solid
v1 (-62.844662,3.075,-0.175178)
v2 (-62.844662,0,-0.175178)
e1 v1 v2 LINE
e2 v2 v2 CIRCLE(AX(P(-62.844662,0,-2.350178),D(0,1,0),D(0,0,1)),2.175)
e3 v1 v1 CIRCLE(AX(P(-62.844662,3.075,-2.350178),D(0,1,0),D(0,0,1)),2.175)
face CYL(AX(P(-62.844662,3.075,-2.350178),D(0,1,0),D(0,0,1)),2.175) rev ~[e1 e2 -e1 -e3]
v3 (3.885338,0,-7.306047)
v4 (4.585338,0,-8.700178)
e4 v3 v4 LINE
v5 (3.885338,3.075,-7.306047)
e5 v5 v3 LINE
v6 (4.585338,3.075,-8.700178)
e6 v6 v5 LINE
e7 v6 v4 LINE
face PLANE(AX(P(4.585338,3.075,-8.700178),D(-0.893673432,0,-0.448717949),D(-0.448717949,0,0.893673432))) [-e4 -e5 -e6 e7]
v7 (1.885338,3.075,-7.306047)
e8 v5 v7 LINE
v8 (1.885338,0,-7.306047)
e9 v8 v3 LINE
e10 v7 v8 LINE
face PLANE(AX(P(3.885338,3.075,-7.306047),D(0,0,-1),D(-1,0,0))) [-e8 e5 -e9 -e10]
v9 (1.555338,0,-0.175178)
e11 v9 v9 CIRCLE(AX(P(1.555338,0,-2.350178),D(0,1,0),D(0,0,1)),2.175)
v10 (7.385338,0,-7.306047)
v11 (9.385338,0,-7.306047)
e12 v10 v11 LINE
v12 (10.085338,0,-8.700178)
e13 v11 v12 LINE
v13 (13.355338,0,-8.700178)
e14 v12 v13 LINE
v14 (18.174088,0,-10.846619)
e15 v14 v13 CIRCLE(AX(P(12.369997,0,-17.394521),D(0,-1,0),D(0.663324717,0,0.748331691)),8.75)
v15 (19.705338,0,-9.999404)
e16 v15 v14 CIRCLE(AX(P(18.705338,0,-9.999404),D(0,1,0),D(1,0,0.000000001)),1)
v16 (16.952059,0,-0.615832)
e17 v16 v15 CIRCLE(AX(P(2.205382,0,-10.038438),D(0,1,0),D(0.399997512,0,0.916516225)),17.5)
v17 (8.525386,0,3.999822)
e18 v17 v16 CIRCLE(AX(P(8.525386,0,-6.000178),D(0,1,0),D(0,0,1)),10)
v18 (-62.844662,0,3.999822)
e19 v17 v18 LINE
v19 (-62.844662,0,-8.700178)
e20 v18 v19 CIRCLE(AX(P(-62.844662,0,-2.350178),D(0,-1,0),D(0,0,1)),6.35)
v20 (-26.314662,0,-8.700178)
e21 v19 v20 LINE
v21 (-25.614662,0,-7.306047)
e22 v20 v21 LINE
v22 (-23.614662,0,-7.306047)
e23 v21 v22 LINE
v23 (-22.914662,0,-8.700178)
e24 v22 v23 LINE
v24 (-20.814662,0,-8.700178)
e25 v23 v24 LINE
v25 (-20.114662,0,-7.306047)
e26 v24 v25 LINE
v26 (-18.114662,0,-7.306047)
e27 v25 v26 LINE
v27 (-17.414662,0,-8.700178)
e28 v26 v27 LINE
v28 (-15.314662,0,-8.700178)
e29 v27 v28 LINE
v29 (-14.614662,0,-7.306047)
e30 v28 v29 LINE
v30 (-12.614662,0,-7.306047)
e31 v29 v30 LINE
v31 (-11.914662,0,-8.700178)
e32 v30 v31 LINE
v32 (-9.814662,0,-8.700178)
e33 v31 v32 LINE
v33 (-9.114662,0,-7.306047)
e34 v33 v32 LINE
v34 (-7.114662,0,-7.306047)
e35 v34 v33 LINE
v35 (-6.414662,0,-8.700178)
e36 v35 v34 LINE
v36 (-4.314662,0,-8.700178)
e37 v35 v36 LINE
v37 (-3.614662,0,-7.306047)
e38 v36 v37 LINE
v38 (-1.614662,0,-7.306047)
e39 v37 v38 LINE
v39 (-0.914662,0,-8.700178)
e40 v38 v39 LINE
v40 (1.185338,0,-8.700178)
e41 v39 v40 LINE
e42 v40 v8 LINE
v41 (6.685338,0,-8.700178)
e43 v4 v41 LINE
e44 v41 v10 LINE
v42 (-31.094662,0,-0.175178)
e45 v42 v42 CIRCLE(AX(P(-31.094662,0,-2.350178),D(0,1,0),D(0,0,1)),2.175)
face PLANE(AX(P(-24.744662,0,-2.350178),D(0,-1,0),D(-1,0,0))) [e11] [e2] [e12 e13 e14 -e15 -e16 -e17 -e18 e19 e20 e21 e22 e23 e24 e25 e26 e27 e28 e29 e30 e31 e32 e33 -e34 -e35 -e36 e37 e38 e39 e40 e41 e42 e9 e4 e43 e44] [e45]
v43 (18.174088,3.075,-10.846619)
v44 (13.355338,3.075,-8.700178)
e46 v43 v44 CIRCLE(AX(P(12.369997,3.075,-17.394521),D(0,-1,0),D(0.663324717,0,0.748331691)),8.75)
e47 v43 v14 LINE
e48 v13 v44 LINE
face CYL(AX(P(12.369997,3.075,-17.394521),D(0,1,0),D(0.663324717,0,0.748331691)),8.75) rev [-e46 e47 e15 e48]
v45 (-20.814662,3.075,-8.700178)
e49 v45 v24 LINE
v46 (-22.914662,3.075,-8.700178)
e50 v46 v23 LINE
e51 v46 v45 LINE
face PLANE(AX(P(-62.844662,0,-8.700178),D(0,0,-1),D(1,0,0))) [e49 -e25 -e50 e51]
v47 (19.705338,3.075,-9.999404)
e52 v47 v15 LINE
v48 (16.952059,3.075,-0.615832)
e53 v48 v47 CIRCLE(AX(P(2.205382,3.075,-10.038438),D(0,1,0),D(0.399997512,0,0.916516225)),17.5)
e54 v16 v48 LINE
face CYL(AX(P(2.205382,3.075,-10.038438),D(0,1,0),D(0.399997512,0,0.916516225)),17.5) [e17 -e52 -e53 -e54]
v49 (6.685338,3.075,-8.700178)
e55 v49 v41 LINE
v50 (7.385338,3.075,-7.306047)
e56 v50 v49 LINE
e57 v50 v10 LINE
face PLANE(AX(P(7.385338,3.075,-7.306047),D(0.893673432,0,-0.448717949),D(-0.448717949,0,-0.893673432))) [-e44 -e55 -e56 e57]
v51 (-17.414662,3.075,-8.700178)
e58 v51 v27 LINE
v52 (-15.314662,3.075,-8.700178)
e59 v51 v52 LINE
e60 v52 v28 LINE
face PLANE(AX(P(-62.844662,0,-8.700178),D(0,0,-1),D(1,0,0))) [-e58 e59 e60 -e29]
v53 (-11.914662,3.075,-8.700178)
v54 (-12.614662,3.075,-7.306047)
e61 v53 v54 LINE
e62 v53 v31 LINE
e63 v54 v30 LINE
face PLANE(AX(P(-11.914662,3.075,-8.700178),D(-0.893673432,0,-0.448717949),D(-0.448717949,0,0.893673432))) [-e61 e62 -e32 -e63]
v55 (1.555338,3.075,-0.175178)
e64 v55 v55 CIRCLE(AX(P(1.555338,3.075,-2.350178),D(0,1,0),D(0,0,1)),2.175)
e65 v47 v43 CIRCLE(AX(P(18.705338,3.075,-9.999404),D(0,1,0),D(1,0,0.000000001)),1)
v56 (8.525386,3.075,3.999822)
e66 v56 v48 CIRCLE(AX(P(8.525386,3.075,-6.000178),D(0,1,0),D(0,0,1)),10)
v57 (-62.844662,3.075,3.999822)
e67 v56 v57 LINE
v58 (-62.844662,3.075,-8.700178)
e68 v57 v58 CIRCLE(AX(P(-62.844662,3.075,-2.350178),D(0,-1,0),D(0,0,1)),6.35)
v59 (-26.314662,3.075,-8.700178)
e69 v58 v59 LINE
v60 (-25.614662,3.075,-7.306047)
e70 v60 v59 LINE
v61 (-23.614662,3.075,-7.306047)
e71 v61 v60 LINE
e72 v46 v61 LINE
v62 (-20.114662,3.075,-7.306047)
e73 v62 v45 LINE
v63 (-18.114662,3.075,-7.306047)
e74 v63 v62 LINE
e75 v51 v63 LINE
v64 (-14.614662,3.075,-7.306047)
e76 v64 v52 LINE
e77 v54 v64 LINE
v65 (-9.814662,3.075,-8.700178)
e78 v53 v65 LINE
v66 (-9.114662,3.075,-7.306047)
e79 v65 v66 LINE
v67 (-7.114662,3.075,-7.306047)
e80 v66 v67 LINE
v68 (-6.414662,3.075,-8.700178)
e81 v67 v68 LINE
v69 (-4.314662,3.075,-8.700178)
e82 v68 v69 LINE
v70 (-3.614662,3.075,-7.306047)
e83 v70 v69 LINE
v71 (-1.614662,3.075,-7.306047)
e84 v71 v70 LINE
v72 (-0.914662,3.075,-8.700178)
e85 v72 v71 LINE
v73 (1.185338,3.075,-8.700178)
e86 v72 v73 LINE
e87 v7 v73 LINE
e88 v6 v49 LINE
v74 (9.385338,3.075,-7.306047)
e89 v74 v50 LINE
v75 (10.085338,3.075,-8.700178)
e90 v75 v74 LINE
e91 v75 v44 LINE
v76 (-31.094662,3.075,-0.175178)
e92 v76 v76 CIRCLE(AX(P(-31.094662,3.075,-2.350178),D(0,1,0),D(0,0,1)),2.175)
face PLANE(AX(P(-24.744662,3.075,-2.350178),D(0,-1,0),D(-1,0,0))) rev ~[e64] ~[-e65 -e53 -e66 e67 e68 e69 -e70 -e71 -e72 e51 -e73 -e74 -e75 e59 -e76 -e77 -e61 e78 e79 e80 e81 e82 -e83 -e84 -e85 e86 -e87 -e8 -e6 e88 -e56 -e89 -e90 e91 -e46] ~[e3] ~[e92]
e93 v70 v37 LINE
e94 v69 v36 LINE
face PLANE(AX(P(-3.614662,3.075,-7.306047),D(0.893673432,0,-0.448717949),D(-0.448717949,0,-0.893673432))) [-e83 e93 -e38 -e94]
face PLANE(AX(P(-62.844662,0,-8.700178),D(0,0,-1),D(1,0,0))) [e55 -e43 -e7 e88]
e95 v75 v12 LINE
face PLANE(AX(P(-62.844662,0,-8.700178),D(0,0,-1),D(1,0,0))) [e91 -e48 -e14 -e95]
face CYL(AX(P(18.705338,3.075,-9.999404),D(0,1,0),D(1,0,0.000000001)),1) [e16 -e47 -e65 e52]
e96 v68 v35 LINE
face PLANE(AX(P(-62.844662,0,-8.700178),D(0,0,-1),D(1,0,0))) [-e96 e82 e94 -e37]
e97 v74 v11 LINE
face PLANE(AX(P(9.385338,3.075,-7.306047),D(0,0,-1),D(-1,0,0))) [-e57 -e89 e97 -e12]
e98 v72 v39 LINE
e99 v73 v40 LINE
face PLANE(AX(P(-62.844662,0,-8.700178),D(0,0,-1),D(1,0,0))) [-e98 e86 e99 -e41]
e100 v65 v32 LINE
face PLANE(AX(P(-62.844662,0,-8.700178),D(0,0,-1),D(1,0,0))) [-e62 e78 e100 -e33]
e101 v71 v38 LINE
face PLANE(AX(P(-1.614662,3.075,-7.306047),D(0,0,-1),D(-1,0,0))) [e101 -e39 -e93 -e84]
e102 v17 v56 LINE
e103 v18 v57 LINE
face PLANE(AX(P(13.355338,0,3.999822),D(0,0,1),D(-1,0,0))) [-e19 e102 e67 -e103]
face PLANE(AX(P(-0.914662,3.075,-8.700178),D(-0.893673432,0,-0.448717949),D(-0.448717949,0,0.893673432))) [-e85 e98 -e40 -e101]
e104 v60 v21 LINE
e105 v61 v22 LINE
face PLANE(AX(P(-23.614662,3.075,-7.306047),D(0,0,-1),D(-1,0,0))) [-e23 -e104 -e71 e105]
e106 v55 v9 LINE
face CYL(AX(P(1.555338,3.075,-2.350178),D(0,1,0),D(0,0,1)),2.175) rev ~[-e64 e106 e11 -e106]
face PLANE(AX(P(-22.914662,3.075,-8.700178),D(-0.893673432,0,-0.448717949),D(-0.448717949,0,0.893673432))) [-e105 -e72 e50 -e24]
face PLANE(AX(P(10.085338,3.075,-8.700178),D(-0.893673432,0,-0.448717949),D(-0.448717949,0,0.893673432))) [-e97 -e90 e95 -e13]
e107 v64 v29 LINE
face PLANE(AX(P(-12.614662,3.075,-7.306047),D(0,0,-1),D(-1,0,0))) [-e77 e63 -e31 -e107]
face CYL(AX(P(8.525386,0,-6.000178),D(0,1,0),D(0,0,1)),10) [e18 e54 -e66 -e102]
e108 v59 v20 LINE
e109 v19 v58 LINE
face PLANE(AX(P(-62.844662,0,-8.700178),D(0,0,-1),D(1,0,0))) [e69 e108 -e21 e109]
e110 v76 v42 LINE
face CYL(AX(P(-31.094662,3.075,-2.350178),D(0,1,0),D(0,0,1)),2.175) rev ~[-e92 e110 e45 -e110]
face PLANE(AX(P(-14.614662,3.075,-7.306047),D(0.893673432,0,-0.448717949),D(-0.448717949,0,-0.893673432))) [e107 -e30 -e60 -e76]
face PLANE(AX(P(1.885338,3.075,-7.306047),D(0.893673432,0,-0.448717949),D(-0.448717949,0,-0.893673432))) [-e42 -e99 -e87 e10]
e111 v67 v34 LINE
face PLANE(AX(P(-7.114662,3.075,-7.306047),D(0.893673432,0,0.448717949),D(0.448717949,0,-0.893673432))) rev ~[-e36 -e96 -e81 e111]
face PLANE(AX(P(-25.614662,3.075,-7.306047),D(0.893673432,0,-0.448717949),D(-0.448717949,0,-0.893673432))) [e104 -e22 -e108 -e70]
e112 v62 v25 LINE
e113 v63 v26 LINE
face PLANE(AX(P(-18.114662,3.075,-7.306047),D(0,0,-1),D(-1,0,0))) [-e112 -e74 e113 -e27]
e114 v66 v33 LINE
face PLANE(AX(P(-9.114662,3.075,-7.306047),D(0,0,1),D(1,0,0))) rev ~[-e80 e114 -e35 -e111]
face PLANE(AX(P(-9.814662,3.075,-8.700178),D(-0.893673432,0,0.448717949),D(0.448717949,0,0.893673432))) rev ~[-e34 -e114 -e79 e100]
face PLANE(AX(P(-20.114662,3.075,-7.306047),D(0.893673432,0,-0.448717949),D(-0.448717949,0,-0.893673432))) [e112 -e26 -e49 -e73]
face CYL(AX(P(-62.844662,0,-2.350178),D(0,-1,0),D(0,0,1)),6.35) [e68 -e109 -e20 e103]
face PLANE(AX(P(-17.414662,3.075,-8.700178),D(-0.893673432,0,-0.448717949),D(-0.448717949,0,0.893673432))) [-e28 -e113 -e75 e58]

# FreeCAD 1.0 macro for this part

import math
import FreeCAD as App
import Part
import Sketcher
from FreeCAD import Vector


def edges_at(feature, points):
    """Names of the edges that pass closest to the given points."""
    edges = feature.Shape.Edges
    near = lambda p: min(range(len(edges)), key=lambda i: edges[i].distToShape(Part.Vertex(*p))[0])
    return sorted({f"Edge{near(p) + 1}" for p in points})


def add_polygon(sketch, points):
    """Adds a closed chain of lines whose ends are joined by coincident constraints."""
    first, n = sketch.GeometryCount, len(points)
    for a, b in zip(points, points[1:] + points[:1]):
        sketch.addGeometry(Part.LineSegment(App.Vector(*a, 0), App.Vector(*b, 0)), False)
    for i in range(n):
        sketch.addConstraint(Sketcher.Constraint("Coincident", first + i, 2, first + (i + 1) % n, 1))

doc = App.newDocument("Part")
body = doc.addObject("PartDesign::Body", "Body")

# Sketch on XZ plane
sketch1 = body.newObject("Sketcher::SketchObject", "Sketch")
sketch1.AttachmentSupport = (doc.getObject("XZ_Plane"), [""])
sketch1.MapMode = "FlatFace"
sketch1.addGeometry(Part.LineSegment(Vector(13, -9, 0), Vector(-63, -9, 0)), False)
sketch1.addGeometry(Part.ArcOfCircle(Part.Circle(Vector(-63, -2, 0), Vector(0, 0, 1), 6), math.radians(90), math.radians(270)), False)
sketch1.addGeometry(Part.LineSegment(Vector(-63, 4, 0), Vector(13, 4, 0)), False)
sketch1.addGeometry(Part.ArcOfCircle(Part.Circle(Vector(13, -2, 0), Vector(0, 0, 1), 6), math.radians(-90), math.radians(90)), False)
sketch1.addConstraint(Sketcher.Constraint("Tangent", 0, 2, 1, 2))
sketch1.addConstraint(Sketcher.Constraint("Tangent", 1, 1, 2, 1))
sketch1.addConstraint(Sketcher.Constraint("Tangent", 2, 2, 3, 2))
sketch1.addConstraint(Sketcher.Constraint("Tangent", 3, 1, 0, 1))
sketch1.addConstraint(Sketcher.Constraint("Horizontal", 0))
sketch1.addConstraint(Sketcher.Constraint("Horizontal", 2))
sketch1.addConstraint(Sketcher.Constraint("Radius", 1, 6.35))
sketch1.addConstraint(Sketcher.Constraint("DistanceX", 0, 2, 0, 1, 76.2))
sketch1.addConstraint(Sketcher.Constraint("DistanceX", 1, 3, -1, 1, 62.844662))
sketch1.addConstraint(Sketcher.Constraint("DistanceY", 1, 3, -1, 1, 2.350178))
pad1 = body.newObject("PartDesign::Pad", "Pad")
pad1.Profile = sketch1
pad1.Length = 3.075
pad1.Reversed = True

# Sketch on XZ plane
sketch2 = body.newObject("Sketcher::SketchObject", "Sketch001")
sketch2.AttachmentSupport = (doc.getObject("XZ_Plane"), [""])
sketch2.MapMode = "FlatFace"
sketch2.AttachmentOffset = App.Placement(Vector(0, 0, -3.075), App.Rotation())
sketch2.addGeometry(Part.Circle(Vector(-62.8, -2.4, 0), Vector(0, 0, 1), 2.2), False)
sketch2.addGeometry(Part.Circle(Vector(-31.1, -2.4, 0), Vector(0, 0, 1), 2.2), False)
sketch2.addGeometry(Part.Circle(Vector(1.6, -2.4, 0), Vector(0, 0, 1), 2.2), False)
sketch2.addConstraint(Sketcher.Constraint("Equal", 0, 1))
sketch2.addConstraint(Sketcher.Constraint("Equal", 1, 2))
sketch2.addConstraint(Sketcher.Constraint("Horizontal", 0, 3, 1, 3))
sketch2.addConstraint(Sketcher.Constraint("Horizontal", 1, 3, 2, 3))
sketch2.addConstraint(Sketcher.Constraint("Diameter", 0, 4.35))
sketch2.addConstraint(Sketcher.Constraint("DistanceX", 0, 3, 2, 3, 64.4))
sketch2.addConstraint(Sketcher.Constraint("DistanceX", 0, 3, 1, 3, 31.75))
sketch2.addConstraint(Sketcher.Constraint("DistanceX", 0, 3, -1, 1, 62.844662))
sketch2.addConstraint(Sketcher.Constraint("DistanceY", 0, 3, -1, 1, 2.350178))
pocket1 = body.newObject("PartDesign::Pocket", "Pocket")
pocket1.Profile = sketch2
pocket1.Length = 6.35
pocket1.Reversed = True

# Sketch on XZ plane
sketch3 = body.newObject("Sketcher::SketchObject", "Sketch002")
sketch3.AttachmentSupport = (doc.getObject("XZ_Plane"), [""])
sketch3.MapMode = "FlatFace"
sketch3.AttachmentOffset = App.Placement(Vector(0, 0, -3.075), App.Rotation())
sketch3.addGeometry(Part.LineSegment(Vector(13.4, -8.7, 0), Vector(13.4, -2.4, 0)), False)
sketch3.addGeometry(Part.LineSegment(Vector(13.4, -2.4, 0), Vector(19.7, -2.4, 0)), False)
sketch3.addGeometry(Part.LineSegment(Vector(19.7, -2.4, 0), Vector(19.7, -10, 0)), False)
sketch3.addGeometry(Part.ArcOfCircle(Part.Circle(Vector(18.7, -10, 0), Vector(0, 0, 1), 1), math.radians(-122), math.radians(0)), False)
sketch3.addGeometry(Part.ArcOfCircle(Part.Circle(Vector(12.4, -17.4, 0), Vector(0, 0, 1), 8.8), math.radians(48), math.radians(84)), False)
sketch3.addConstraint(Sketcher.Constraint("Coincident", 0, 2, 1, 1))
sketch3.addConstraint(Sketcher.Constraint("Coincident", 1, 2, 2, 1))
sketch3.addConstraint(Sketcher.Constraint("Tangent", 2, 2, 3, 2))
sketch3.addConstraint(Sketcher.Constraint("Coincident", 3, 1, 4, 1))
sketch3.addConstraint(Sketcher.Constraint("Coincident", 4, 2, 0, 1))
sketch3.addConstraint(Sketcher.Constraint("Vertical", 0))
sketch3.addConstraint(Sketcher.Constraint("Horizontal", 1))
sketch3.addConstraint(Sketcher.Constraint("Vertical", 2))
sketch3.addConstraint(Sketcher.Constraint("Equal", 1, 0))
sketch3.addConstraint(Sketcher.Constraint("Radius", 3, 1.0))
sketch3.addConstraint(Sketcher.Constraint("Radius", 4, 8.75))
sketch3.addConstraint(Sketcher.Constraint("DistanceX", 1, 1, 1, 2, 6.35))
sketch3.addConstraint(Sketcher.Constraint("DistanceY", 2, 2, 2, 1, 7.649226))
sketch3.addConstraint(Sketcher.Constraint("DistanceX", -1, 1, 3, 3, 18.705338))
sketch3.addConstraint(Sketcher.Constraint("DistanceY", 4, 3, -1, 1, 17.394521))
sketch3.addConstraint(Sketcher.Constraint("DistanceX", -1, 1, 3, 1, 18.174088))
pad2 = body.newObject("PartDesign::Pad", "Pad001")
pad2.Profile = sketch3
pad2.Length = 3.075

# Sketch on XZ plane
sketch4 = body.newObject("Sketcher::SketchObject", "Sketch003")
sketch4.AttachmentSupport = (doc.getObject("XZ_Plane"), [""])
sketch4.MapMode = "FlatFace"
sketch4.AttachmentOffset = App.Placement(Vector(0, 0, -3.075), App.Rotation())
sketch4.addGeometry(Part.LineSegment(Vector(20, 6, 0), Vector(20, -10, 0)), False)
sketch4.addGeometry(Part.ArcOfCircle(Part.Circle(Vector(2, -10, 0), Vector(0, 0, 1), 17), math.radians(0), math.radians(66)), False)
sketch4.addGeometry(Part.LineSegment(Vector(9, 6, 0), Vector(20, 6, 0)), False)
sketch4.addConstraint(Sketcher.Constraint("Coincident", 0, 2, 1, 1))
sketch4.addConstraint(Sketcher.Constraint("Coincident", 1, 2, 2, 1))
sketch4.addConstraint(Sketcher.Constraint("Coincident", 2, 2, 0, 1))
sketch4.addConstraint(Sketcher.Constraint("Vertical", 0))
sketch4.addConstraint(Sketcher.Constraint("Horizontal", 2))
sketch4.addConstraint(Sketcher.Constraint("Radius", 1, 17.5))
sketch4.addConstraint(Sketcher.Constraint("DistanceY", 0, 2, 0, 1, 16.0))
sketch4.addConstraint(Sketcher.Constraint("DistanceX", 2, 1, 2, 2, 10.5))
sketch4.addConstraint(Sketcher.Constraint("DistanceX", -1, 1, 1, 3, 2.205382))
sketch4.addConstraint(Sketcher.Constraint("DistanceY", 1, 3, -1, 1, 10.038438))
pocket2 = body.newObject("PartDesign::Pocket", "Pocket001")
pocket2.Profile = sketch4
pocket2.Length = 10
pocket2.Reversed = True
doc.recompute()

fillet = body.newObject("PartDesign::Fillet", "Fillet")
fillet.Base = (pocket2, edges_at(pocket2, [(12.654, 1.538, 4)]))
fillet.Radius = 10

# Sketch on XZ plane
sketch5 = body.newObject("Sketcher::SketchObject", "Sketch004")
sketch5.AttachmentSupport = (doc.getObject("XZ_Plane"), [""])
sketch5.MapMode = "FlatFace"
sketch5.AttachmentOffset = App.Placement(Vector(0, 0, -3.075), App.Rotation())
add_polygon(sketch5, [(-0.9, -8.7), (-4.3, -8.7), (-3.6, -7.3), (-1.6, -7.3)])  # lines 0-3
add_polygon(sketch5, [(-9.8, -8.7), (-9.1, -7.3), (-7.1, -7.3), (-6.4, -8.7)])  # lines 4-7
add_polygon(sketch5, [(4.6, -8.7), (1.2, -8.7), (1.9, -7.3), (3.9, -7.3)])  # lines 8-11
add_polygon(sketch5, [(10.1, -8.7), (6.7, -8.7), (7.4, -7.3), (9.4, -7.3)])  # lines 12-15
add_polygon(sketch5, [(-11.9, -8.7), (-15.3, -8.7), (-14.6, -7.3), (-12.6, -7.3)])  # lines 16-19
add_polygon(sketch5, [(-17.4, -8.7), (-20.8, -8.7), (-20.1, -7.3), (-18.1, -7.3)])  # lines 20-23
add_polygon(sketch5, [(-22.9, -8.7), (-26.3, -8.7), (-25.6, -7.3), (-23.6, -7.3)])  # lines 24-27
sketch5.addConstraint(Sketcher.Constraint("Horizontal", 0))
sketch5.addConstraint(Sketcher.Constraint("Horizontal", 2))
sketch5.addConstraint(Sketcher.Constraint("Horizontal", 5))
sketch5.addConstraint(Sketcher.Constraint("Horizontal", 7))
sketch5.addConstraint(Sketcher.Constraint("Horizontal", 8))
sketch5.addConstraint(Sketcher.Constraint("Horizontal", 10))
sketch5.addConstraint(Sketcher.Constraint("Horizontal", 12))
sketch5.addConstraint(Sketcher.Constraint("Horizontal", 14))
sketch5.addConstraint(Sketcher.Constraint("Horizontal", 16))
sketch5.addConstraint(Sketcher.Constraint("Horizontal", 18))
sketch5.addConstraint(Sketcher.Constraint("Horizontal", 20))
sketch5.addConstraint(Sketcher.Constraint("Horizontal", 22))
sketch5.addConstraint(Sketcher.Constraint("Horizontal", 24))
sketch5.addConstraint(Sketcher.Constraint("Horizontal", 26))
sketch5.addConstraint(Sketcher.Constraint("Parallel", 1, 4))
sketch5.addConstraint(Sketcher.Constraint("Parallel", 3, 6))
sketch5.addConstraint(Sketcher.Constraint("Parallel", 4, 9))
sketch5.addConstraint(Sketcher.Constraint("Parallel", 6, 11))
sketch5.addConstraint(Sketcher.Constraint("Parallel", 9, 13))
sketch5.addConstraint(Sketcher.Constraint("Parallel", 11, 15))
sketch5.addConstraint(Sketcher.Constraint("Parallel", 13, 17))
sketch5.addConstraint(Sketcher.Constraint("Parallel", 15, 19))
sketch5.addConstraint(Sketcher.Constraint("Parallel", 17, 21))
sketch5.addConstraint(Sketcher.Constraint("Parallel", 19, 23))
sketch5.addConstraint(Sketcher.Constraint("Parallel", 21, 25))
sketch5.addConstraint(Sketcher.Constraint("Parallel", 23, 27))
sketch5.addConstraint(Sketcher.Constraint("Horizontal", 2, 2, 4, 2))
sketch5.addConstraint(Sketcher.Constraint("Horizontal", 3, 2, 6, 2))
sketch5.addConstraint(Sketcher.Constraint("Horizontal", 7, 2, 8, 2))
sketch5.addConstraint(Sketcher.Constraint("Horizontal", 5, 2, 9, 2))
sketch5.addConstraint(Sketcher.Constraint("Horizontal", 11, 2, 12, 2))
sketch5.addConstraint(Sketcher.Constraint("Horizontal", 10, 2, 13, 2))
sketch5.addConstraint(Sketcher.Constraint("Horizontal", 15, 2, 16, 2))
sketch5.addConstraint(Sketcher.Constraint("Horizontal", 14, 2, 17, 2))
sketch5.addConstraint(Sketcher.Constraint("Horizontal", 19, 2, 20, 2))
sketch5.addConstraint(Sketcher.Constraint("Horizontal", 18, 2, 21, 2))
sketch5.addConstraint(Sketcher.Constraint("Horizontal", 23, 2, 24, 2))
sketch5.addConstraint(Sketcher.Constraint("Horizontal", 22, 2, 25, 2))
sketch5.addConstraint(Sketcher.Constraint("Equal", 2, 5))
sketch5.addConstraint(Sketcher.Constraint("Equal", 7, 8))
sketch5.addConstraint(Sketcher.Constraint("Equal", 8, 12))
sketch5.addConstraint(Sketcher.Constraint("Equal", 12, 16))
sketch5.addConstraint(Sketcher.Constraint("Equal", 16, 20))
sketch5.addConstraint(Sketcher.Constraint("Equal", 20, 24))
sketch5.addConstraint(Sketcher.Constraint("Equal", 1, 3))
sketch5.addConstraint(Sketcher.Constraint("DistanceX", 2, 1, 2, 2, 2.0))
sketch5.addConstraint(Sketcher.Constraint("DistanceX", 0, 2, 0, 1, 3.4))
sketch5.addConstraint(Sketcher.Constraint("DistanceX", 16, 2, 0, 2, 11.0))
sketch5.addConstraint(Sketcher.Constraint("DistanceX", 20, 2, 7, 2, 11.0))
sketch5.addConstraint(Sketcher.Constraint("DistanceX", 24, 2, 16, 2, 11.0))
sketch5.addConstraint(Sketcher.Constraint("DistanceX", 4, 2, 0, 2, 4.8))
sketch5.addConstraint(Sketcher.Constraint("DistanceX", 3, 2, 8, 2, 2.1))
sketch5.addConstraint(Sketcher.Constraint("DistanceX", 11, 2, 12, 2, 2.1))
sketch5.addConstraint(Sketcher.Constraint("Distance", 1, 1.56))
sketch5.addConstraint(Sketcher.Constraint("DistanceX", 0, 2, -1, 1, 4.314662))
sketch5.addConstraint(Sketcher.Constraint("DistanceY", 0, 2, -1, 1, 8.700178))
pocket3 = body.newObject("PartDesign::Pocket", "Pocket002")
pocket3.Profile = sketch5
pocket3.Length = 10
pocket3.Reversed = True

doc.recompute()
